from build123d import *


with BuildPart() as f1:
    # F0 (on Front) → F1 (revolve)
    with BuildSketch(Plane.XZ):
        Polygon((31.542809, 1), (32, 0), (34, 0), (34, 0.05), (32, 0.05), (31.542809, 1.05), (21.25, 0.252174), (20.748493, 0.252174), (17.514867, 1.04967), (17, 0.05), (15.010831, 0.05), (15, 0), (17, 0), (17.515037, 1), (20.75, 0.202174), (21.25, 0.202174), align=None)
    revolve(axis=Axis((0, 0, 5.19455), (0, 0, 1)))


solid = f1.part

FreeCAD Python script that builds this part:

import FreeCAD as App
import Part
import Sketcher

doc = App.newDocument("Part")
body = doc.addObject("PartDesign::Body", "Body")

# Sketch on XZ plane
sketch1 = body.newObject("Sketcher::SketchObject", "Sketch")
sketch1.AttachmentSupport = (doc.getObject("XZ_Plane"), [""])
sketch1.MapMode = "FlatFace"
sketch1.addGeometry(Part.LineSegment(App.Vector(31.54, 1, 0), App.Vector(32, 0, 0)), False)
sketch1.addGeometry(Part.LineSegment(App.Vector(32, 0, 0), App.Vector(34, 0, 0)), False)
sketch1.addGeometry(Part.LineSegment(App.Vector(34, 0, 0), App.Vector(34, 0.05, 0)), False)
sketch1.addGeometry(Part.LineSegment(App.Vector(34, 0.05, 0), App.Vector(32, 0.05, 0)), False)
sketch1.addGeometry(Part.LineSegment(App.Vector(32, 0.05, 0), App.Vector(31.54, 1.05, 0)), False)
sketch1.addGeometry(Part.LineSegment(App.Vector(31.54, 1.05, 0), App.Vector(21.25, 0.25, 0)), False)
sketch1.addGeometry(Part.LineSegment(App.Vector(21.25, 0.25, 0), App.Vector(20.75, 0.25, 0)), False)
sketch1.addGeometry(Part.LineSegment(App.Vector(20.75, 0.25, 0), App.Vector(17.51, 1.05, 0)), False)
sketch1.addGeometry(Part.LineSegment(App.Vector(17.51, 1.05, 0), App.Vector(17, 0.05, 0)), False)
sketch1.addGeometry(Part.LineSegment(App.Vector(17, 0.05, 0), App.Vector(15.01, 0.05, 0)), False)
sketch1.addGeometry(Part.LineSegment(App.Vector(15.01, 0.05, 0), App.Vector(15, 0, 0)), False)
sketch1.addGeometry(Part.LineSegment(App.Vector(15, 0, 0), App.Vector(17, 0, 0)), False)
sketch1.addGeometry(Part.LineSegment(App.Vector(17, 0, 0), App.Vector(17.52, 1, 0)), False)
sketch1.addGeometry(Part.LineSegment(App.Vector(17.52, 1, 0), App.Vector(20.75, 0.2, 0)), False)
sketch1.addGeometry(Part.LineSegment(App.Vector(20.75, 0.2, 0), App.Vector(21.25, 0.2, 0)), False)
sketch1.addGeometry(Part.LineSegment(App.Vector(21.25, 0.2, 0), App.Vector(31.54, 1, 0)), False)
sketch1.addConstraint(Sketcher.Constraint("Coincident", 0, 2, 1, 1))
sketch1.addConstraint(Sketcher.Constraint("Coincident", 1, 2, 2, 1))
sketch1.addConstraint(Sketcher.Constraint("Coincident", 2, 2, 3, 1))
sketch1.addConstraint(Sketcher.Constraint("Coincident", 3, 2, 4, 1))
sketch1.addConstraint(Sketcher.Constraint("Coincident", 4, 2, 5, 1))
sketch1.addConstraint(Sketcher.Constraint("Coincident", 5, 2, 6, 1))
sketch1.addConstraint(Sketcher.Constraint("Coincident", 6, 2, 7, 1))
sketch1.addConstraint(Sketcher.Constraint("Coincident", 7, 2, 8, 1))
sketch1.addConstraint(Sketcher.Constraint("Coincident", 8, 2, 9, 1))
sketch1.addConstraint(Sketcher.Constraint("Coincident", 9, 2, 10, 1))
sketch1.addConstraint(Sketcher.Constraint("Coincident", 10, 2, 11, 1))
sketch1.addConstraint(Sketcher.Constraint("Coincident", 11, 2, 12, 1))
sketch1.addConstraint(Sketcher.Constraint("Coincident", 12, 2, 13, 1))
sketch1.addConstraint(Sketcher.Constraint("Coincident", 13, 2, 14, 1))
sketch1.addConstraint(Sketcher.Constraint("Coincident", 14, 2, 15, 1))
sketch1.addConstraint(Sketcher.Constraint("Coincident", 15, 2, 0, 1))
sketch1.addConstraint(Sketcher.Constraint("Horizontal", 1))
sketch1.addConstraint(Sketcher.Constraint("Vertical", 2))
sketch1.addConstraint(Sketcher.Constraint("Horizontal", 3))
sketch1.addConstraint(Sketcher.Constraint("Horizontal", 6))
sketch1.addConstraint(Sketcher.Constraint("Horizontal", 9))
sketch1.addConstraint(Sketcher.Constraint("Horizontal", 11))
sketch1.addConstraint(Sketcher.Constraint("Horizontal", 14))
sketch1.addConstraint(Sketcher.Constraint("PointOnObject", 0, 2, -1))
sketch1.addConstraint(Sketcher.Constraint("PointOnObject", 10, 2, -1))
sketch1.addConstraint(Sketcher.Constraint("Parallel", 0, 4))
sketch1.addConstraint(Sketcher.Constraint("Parallel", 8, 12))
sketch1.addConstraint(Sketcher.Constraint("Parallel", 7, 13))
sketch1.addConstraint(Sketcher.Constraint("Parallel", 5, 15))
sketch1.addConstraint(Sketcher.Constraint("Horizontal", 3, 2, 8, 2))
sketch1.addConstraint(Sketcher.Constraint("Horizontal", 12, 2, 15, 2))
sketch1.addConstraint(Sketcher.Constraint("Vertical", 0, 2, 3, 2))
sketch1.addConstraint(Sketcher.Constraint("Vertical", 8, 2, 11, 2))
sketch1.addConstraint(Sketcher.Constraint("Vertical", 5, 2, 14, 2))
sketch1.addConstraint(Sketcher.Constraint("Vertical", 4, 2, 15, 2))
sketch1.addConstraint(Sketcher.Constraint("Equal", 3, 11))
sketch1.addConstraint(Sketcher.Constraint("DistanceX", 1, 1, 1, 2, 2.0))
sketch1.addConstraint(Sketcher.Constraint("DistanceX", 14, 1, 14, 2, 0.5))
sketch1.addConstraint(Sketcher.Constraint("DistanceX", -1, 1, 0, 2, 32.0))
sketch1.addConstraint(Sketcher.Constraint("DistanceX", -1, 1, 8, 2, 17.0))
sketch1.addConstraint(Sketcher.Constraint("DistanceY", -1, 1, 12, 2, 1.0))
sketch1.addConstraint(Sketcher.Constraint("DistanceY", 2, 1, 2, 2, 0.05))
sketch1.addConstraint(Sketcher.Constraint("DistanceX", -1, 1, 5, 2, 21.25))
sketch1.addConstraint(Sketcher.Constraint("DistanceX", 9, 2, 9, 1, 1.989169))
sketch1.addConstraint(Sketcher.Constraint("Distance", 12, 1.124839))
sketch1.addConstraint(Sketcher.Constraint("DistanceX", 6, 2, 6, 1, 0.501507))
sketch1.addConstraint(Sketcher.Constraint("DistanceX", -1, 1, 4, 2, 31.542809))
sketch1.addConstraint(Sketcher.Constraint("Distance", 5, 10.323684))
revolution = body.newObject("PartDesign::Revolution", "Revolution")
revolution.Profile = sketch1
revolution.ReferenceAxis = (sketch1, ["V_Axis"])
revolution.Angle = 360

doc.recompute()
